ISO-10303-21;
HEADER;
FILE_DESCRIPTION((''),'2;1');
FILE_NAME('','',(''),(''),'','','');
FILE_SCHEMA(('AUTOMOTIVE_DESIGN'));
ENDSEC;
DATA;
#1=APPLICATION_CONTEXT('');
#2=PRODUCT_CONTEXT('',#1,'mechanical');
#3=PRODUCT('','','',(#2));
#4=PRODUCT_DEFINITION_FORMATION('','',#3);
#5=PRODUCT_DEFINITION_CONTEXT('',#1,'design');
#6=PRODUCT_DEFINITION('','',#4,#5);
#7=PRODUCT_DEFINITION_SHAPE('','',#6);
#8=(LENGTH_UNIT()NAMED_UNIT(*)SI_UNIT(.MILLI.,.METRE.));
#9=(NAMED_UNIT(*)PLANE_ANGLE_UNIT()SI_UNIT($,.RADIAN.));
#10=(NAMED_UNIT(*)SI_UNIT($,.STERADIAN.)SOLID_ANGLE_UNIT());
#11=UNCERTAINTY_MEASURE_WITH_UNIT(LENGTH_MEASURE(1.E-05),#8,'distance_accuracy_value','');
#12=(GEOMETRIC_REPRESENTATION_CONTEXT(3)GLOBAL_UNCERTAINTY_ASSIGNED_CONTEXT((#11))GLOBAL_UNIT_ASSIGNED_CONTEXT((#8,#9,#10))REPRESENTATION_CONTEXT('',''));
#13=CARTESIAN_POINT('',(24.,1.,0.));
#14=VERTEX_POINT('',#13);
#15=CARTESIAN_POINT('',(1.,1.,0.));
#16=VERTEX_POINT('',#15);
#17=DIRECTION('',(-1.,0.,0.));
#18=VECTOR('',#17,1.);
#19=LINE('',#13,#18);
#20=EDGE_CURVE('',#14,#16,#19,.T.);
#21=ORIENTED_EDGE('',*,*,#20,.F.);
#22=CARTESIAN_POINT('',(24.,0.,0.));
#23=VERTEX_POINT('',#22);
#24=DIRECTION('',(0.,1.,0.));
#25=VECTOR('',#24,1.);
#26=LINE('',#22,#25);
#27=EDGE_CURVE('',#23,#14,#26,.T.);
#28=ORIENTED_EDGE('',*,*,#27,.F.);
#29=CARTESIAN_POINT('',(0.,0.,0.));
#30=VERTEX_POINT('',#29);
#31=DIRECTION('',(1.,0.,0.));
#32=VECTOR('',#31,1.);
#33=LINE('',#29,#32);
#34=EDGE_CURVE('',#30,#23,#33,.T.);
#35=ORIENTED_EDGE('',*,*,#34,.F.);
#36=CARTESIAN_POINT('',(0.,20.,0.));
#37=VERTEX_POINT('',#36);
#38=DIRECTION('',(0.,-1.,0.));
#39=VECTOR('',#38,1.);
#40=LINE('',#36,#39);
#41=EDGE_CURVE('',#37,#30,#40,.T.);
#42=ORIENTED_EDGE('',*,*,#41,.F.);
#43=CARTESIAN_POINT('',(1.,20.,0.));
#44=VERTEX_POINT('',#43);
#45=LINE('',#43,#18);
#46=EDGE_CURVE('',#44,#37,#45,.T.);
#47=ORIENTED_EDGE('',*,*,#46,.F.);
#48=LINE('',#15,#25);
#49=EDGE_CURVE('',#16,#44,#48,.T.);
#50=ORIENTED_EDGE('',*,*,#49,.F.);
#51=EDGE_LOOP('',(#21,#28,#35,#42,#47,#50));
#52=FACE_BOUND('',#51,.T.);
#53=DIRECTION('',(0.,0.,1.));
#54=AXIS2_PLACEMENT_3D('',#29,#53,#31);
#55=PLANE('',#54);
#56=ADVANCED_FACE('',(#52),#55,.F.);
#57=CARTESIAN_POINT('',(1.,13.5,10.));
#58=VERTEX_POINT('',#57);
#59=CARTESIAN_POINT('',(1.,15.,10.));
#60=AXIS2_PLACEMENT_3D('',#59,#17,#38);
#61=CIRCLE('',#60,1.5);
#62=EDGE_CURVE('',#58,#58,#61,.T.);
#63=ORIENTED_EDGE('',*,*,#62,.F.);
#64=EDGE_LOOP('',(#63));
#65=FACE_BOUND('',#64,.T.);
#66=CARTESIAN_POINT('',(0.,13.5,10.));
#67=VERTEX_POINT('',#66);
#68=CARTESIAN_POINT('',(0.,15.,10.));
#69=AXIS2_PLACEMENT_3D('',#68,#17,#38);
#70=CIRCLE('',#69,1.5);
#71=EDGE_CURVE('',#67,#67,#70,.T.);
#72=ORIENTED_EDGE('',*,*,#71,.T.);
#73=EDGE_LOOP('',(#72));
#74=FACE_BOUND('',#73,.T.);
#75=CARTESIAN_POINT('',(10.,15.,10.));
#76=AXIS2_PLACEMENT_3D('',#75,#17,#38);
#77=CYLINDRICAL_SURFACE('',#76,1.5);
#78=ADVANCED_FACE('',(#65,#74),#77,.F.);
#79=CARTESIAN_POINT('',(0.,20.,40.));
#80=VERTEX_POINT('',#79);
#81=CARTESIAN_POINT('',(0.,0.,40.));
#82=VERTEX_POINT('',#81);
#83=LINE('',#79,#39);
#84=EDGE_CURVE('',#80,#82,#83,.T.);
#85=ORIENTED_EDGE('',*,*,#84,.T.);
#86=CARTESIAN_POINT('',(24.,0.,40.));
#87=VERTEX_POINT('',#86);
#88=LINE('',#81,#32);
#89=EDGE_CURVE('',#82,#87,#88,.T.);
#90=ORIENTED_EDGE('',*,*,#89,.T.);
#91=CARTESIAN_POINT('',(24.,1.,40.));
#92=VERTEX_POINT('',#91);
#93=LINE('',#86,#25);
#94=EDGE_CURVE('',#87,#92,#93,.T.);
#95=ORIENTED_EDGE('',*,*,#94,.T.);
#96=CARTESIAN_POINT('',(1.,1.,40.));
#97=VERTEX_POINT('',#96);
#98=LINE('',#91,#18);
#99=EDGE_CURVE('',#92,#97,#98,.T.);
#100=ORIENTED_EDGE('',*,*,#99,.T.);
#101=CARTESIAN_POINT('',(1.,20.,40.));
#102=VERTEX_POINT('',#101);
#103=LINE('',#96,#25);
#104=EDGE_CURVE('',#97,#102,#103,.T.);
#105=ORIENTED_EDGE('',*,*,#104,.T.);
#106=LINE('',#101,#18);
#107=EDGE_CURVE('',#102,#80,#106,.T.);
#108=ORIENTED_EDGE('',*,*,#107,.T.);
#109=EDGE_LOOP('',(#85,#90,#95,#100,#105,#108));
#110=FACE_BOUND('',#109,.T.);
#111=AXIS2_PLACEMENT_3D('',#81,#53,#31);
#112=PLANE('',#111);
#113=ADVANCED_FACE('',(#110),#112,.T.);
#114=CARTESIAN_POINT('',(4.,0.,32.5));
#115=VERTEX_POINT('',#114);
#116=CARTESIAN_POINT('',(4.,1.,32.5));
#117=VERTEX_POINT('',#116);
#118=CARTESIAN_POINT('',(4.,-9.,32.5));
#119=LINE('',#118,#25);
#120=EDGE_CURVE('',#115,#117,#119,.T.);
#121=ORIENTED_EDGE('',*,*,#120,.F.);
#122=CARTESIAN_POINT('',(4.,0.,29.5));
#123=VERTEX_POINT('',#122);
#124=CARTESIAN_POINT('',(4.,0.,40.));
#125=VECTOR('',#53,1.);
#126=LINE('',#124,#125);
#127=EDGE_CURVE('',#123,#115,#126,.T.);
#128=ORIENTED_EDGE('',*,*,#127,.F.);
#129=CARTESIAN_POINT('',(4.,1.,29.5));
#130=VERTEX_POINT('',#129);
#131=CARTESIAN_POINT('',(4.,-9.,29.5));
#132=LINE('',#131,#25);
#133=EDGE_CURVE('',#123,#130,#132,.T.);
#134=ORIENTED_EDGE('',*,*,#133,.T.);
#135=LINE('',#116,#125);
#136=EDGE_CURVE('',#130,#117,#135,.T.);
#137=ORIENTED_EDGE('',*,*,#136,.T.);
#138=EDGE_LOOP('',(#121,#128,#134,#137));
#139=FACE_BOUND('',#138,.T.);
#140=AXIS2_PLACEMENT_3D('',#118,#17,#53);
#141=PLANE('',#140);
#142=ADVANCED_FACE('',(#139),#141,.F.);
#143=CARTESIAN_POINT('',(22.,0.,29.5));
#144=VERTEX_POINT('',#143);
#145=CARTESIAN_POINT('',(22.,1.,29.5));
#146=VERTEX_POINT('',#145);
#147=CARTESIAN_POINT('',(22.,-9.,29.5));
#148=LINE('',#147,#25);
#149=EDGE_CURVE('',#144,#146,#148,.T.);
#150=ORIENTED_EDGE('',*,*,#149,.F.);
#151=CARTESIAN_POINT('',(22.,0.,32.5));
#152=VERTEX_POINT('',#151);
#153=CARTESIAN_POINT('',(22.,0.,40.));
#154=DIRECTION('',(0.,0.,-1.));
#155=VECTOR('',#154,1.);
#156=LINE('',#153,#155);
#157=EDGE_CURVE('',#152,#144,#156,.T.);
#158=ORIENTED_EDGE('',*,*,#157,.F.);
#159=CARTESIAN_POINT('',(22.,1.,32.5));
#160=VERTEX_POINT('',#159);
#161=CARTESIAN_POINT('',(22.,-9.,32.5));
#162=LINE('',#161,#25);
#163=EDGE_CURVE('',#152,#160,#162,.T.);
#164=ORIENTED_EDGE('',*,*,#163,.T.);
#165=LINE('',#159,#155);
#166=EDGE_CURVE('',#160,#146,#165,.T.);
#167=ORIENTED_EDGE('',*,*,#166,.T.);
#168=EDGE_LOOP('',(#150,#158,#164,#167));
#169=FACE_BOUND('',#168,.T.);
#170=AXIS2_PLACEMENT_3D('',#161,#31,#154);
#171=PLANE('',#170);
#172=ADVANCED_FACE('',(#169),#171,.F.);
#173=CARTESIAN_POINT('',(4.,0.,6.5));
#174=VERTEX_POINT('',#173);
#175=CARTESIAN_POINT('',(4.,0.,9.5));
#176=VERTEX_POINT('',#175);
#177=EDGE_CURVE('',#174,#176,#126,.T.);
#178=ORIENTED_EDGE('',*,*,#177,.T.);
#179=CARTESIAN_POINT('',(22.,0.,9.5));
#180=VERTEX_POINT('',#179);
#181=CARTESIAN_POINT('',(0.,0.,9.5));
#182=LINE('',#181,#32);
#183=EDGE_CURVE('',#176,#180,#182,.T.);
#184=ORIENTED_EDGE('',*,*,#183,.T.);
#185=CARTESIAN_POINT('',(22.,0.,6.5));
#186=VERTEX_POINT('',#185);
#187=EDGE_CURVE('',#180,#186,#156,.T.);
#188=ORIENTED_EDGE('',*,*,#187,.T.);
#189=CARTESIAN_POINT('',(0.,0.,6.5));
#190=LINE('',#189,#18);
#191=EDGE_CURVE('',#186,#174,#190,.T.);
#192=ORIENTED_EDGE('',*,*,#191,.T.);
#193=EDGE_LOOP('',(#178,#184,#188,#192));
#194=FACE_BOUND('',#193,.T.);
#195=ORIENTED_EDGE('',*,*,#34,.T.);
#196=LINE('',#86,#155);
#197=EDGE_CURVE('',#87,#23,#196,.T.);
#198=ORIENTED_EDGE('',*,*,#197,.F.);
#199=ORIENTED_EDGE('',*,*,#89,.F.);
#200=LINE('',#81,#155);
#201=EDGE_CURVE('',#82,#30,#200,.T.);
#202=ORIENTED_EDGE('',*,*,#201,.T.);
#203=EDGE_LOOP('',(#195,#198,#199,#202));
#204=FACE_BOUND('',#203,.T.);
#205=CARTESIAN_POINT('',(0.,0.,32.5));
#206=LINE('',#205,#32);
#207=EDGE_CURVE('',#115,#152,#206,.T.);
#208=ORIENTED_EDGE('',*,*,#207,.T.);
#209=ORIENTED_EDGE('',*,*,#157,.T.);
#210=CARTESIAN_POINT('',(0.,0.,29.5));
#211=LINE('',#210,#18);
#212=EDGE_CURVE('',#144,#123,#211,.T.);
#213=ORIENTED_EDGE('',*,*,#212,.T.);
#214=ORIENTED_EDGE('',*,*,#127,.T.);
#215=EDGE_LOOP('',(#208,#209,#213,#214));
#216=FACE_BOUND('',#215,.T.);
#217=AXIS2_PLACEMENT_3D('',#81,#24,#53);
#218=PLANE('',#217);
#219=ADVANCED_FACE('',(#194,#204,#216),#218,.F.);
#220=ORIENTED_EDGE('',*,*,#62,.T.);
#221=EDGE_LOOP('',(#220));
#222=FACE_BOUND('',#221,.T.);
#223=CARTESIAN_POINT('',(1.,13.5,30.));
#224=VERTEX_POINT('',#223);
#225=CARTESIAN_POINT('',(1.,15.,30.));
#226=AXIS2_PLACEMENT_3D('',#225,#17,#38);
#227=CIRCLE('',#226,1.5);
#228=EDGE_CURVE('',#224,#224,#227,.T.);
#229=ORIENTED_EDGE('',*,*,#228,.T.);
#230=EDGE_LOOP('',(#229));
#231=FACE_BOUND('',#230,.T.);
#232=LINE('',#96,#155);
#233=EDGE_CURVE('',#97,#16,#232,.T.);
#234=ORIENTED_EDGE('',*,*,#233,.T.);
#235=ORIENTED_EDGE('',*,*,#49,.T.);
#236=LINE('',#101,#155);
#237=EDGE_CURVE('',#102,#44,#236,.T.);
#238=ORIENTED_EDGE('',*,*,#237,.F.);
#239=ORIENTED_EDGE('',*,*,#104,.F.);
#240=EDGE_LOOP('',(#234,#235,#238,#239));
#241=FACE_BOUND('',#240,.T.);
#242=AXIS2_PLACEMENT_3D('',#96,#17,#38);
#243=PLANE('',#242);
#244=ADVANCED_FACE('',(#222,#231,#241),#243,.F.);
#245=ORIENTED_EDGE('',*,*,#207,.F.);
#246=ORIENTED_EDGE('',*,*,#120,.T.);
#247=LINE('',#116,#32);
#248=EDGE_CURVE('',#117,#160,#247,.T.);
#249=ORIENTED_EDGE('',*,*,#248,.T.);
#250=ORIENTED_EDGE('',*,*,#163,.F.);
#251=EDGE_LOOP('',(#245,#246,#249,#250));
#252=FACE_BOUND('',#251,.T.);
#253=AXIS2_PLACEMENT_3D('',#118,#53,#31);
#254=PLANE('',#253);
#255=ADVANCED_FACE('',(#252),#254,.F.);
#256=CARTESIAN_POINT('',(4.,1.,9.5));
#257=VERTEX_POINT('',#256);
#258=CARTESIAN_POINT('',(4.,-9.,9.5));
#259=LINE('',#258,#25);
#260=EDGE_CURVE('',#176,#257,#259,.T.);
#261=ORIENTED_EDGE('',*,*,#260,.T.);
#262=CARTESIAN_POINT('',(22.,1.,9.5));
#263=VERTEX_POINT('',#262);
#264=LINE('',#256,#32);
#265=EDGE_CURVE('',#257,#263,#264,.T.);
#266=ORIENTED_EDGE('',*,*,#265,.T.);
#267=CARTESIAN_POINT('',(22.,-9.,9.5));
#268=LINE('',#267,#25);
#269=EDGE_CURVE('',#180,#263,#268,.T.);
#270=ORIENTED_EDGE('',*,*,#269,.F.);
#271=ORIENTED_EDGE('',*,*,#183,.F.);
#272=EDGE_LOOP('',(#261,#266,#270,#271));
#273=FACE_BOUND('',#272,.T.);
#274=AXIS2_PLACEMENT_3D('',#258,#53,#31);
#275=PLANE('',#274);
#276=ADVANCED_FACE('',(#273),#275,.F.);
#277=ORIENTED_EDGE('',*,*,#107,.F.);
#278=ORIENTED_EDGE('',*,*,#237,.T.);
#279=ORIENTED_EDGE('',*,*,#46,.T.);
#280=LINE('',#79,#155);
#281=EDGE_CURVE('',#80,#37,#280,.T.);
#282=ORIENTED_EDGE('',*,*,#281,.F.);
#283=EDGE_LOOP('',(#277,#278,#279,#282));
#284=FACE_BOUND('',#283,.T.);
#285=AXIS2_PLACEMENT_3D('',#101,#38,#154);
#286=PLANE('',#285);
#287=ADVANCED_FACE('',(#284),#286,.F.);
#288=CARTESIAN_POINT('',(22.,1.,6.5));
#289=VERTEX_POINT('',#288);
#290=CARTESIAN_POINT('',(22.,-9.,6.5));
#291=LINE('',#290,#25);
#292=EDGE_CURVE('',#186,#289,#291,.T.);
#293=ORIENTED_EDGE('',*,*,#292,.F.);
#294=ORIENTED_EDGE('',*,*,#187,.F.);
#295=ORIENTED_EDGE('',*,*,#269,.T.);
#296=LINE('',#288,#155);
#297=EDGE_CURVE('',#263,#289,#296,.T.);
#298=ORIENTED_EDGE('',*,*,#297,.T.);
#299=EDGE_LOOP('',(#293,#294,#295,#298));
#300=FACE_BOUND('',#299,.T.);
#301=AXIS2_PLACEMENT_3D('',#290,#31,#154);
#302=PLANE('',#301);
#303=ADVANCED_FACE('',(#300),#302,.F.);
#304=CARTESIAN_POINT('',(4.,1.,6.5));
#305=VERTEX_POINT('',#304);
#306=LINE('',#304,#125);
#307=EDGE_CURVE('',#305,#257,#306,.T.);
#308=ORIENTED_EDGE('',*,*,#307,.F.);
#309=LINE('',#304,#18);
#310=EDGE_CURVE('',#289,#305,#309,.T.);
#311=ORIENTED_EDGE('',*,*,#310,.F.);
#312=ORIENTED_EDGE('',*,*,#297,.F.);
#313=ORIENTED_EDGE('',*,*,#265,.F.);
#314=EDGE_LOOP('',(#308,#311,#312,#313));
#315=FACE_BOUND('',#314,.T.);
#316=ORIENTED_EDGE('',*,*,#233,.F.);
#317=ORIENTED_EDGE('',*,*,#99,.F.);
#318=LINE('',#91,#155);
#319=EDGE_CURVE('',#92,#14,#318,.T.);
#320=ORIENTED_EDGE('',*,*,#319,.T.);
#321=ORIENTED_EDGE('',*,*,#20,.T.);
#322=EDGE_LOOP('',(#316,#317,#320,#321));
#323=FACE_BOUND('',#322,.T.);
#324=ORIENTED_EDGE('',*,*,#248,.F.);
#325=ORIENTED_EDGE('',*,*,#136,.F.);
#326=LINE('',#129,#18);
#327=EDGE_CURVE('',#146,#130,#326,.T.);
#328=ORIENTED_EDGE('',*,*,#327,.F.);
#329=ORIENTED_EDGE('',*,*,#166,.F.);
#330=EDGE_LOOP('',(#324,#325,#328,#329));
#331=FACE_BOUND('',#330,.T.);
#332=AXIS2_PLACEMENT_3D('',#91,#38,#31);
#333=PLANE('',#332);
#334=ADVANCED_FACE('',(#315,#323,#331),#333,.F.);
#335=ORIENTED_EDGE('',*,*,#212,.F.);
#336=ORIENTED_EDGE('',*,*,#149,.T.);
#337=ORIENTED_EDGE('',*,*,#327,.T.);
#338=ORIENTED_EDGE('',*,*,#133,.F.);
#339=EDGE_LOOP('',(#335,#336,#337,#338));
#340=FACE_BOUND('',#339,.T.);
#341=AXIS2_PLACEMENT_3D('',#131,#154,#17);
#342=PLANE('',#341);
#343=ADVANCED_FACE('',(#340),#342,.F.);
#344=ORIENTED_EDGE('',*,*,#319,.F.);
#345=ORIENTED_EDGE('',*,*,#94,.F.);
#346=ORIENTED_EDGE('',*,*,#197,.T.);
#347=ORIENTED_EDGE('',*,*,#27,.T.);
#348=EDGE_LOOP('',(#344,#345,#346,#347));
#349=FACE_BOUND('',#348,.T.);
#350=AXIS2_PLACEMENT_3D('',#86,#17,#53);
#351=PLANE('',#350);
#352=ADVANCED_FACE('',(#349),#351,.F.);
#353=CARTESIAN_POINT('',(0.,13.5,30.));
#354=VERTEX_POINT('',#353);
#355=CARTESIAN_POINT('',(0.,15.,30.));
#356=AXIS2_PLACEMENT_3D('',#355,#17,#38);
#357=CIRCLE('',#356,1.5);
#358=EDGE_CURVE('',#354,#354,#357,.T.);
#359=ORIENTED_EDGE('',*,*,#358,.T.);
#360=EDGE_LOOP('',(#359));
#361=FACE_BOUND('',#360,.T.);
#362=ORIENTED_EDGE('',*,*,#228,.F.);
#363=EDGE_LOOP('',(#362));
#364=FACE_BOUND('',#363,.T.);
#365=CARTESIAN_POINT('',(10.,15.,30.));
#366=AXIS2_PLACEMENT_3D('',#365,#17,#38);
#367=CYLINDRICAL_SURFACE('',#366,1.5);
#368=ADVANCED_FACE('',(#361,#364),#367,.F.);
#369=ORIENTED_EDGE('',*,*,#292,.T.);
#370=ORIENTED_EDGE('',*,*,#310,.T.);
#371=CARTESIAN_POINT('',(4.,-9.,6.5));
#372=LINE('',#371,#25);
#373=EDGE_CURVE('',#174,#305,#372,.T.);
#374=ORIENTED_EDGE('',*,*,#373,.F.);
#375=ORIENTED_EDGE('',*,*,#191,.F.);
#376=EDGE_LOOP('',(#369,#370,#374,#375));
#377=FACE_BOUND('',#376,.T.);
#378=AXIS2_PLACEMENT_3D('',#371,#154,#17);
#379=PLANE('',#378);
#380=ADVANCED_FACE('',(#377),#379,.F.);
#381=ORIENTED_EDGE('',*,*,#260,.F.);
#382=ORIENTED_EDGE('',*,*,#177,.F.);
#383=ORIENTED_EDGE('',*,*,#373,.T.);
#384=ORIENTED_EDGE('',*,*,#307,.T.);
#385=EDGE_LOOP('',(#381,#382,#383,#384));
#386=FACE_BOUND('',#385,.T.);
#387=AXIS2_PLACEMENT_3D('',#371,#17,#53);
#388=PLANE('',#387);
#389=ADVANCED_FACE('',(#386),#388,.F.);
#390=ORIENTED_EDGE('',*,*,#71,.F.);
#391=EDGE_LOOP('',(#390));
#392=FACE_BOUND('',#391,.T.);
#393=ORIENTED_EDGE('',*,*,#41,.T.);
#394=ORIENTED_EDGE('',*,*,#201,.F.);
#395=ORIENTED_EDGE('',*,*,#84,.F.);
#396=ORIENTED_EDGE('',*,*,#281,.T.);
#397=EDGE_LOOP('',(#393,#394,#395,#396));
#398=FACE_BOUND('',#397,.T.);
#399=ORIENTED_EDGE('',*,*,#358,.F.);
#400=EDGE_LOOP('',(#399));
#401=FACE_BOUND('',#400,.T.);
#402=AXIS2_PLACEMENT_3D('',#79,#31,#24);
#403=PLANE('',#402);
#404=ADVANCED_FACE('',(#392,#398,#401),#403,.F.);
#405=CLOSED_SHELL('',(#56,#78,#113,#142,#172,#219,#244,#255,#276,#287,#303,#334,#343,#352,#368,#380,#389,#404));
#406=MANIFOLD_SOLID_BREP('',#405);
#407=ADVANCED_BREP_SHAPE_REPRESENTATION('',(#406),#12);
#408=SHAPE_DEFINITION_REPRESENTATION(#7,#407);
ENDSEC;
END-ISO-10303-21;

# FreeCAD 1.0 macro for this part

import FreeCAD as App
import Part
import Sketcher
from FreeCAD import Vector

doc = App.newDocument("Part")
body = doc.addObject("PartDesign::Body", "Body")

# Sketch on XY plane
sketch1 = body.newObject("Sketcher::SketchObject", "Sketch")
sketch1.AttachmentSupport = (doc.getObject("XY_Plane"), [""])
sketch1.MapMode = "FlatFace"
sketch1.addGeometry(Part.LineSegment(Vector(0, 0, 0), Vector(24, 0, 0)), False)
sketch1.addGeometry(Part.LineSegment(Vector(24, 0, 0), Vector(24, 1, 0)), False)
sketch1.addGeometry(Part.LineSegment(Vector(24, 1, 0), Vector(1, 1, 0)), False)
sketch1.addGeometry(Part.LineSegment(Vector(1, 1, 0), Vector(1, 20, 0)), False)
sketch1.addGeometry(Part.LineSegment(Vector(1, 20, 0), Vector(0, 20, 0)), False)
sketch1.addGeometry(Part.LineSegment(Vector(0, 20, 0), Vector(0, 0, 0)), False)
sketch1.addConstraint(Sketcher.Constraint("Coincident", 0, 2, 1, 1))
sketch1.addConstraint(Sketcher.Constraint("Coincident", 1, 2, 2, 1))
sketch1.addConstraint(Sketcher.Constraint("Coincident", 2, 2, 3, 1))
sketch1.addConstraint(Sketcher.Constraint("Coincident", 3, 2, 4, 1))
sketch1.addConstraint(Sketcher.Constraint("Coincident", 4, 2, 5, 1))
sketch1.addConstraint(Sketcher.Constraint("Coincident", 5, 2, 0, 1))
sketch1.addConstraint(Sketcher.Constraint("Horizontal", 0))
sketch1.addConstraint(Sketcher.Constraint("Vertical", 1))
sketch1.addConstraint(Sketcher.Constraint("Horizontal", 2))
sketch1.addConstraint(Sketcher.Constraint("Vertical", 3))
sketch1.addConstraint(Sketcher.Constraint("Horizontal", 4))
sketch1.addConstraint(Sketcher.Constraint("Vertical", 5))
sketch1.addConstraint(Sketcher.Constraint("Coincident", 5, 2, -1, 1))
sketch1.addConstraint(Sketcher.Constraint("Equal", 4, 1))
sketch1.addConstraint(Sketcher.Constraint("DistanceX", 0, 1, 0, 2, 24.0))
sketch1.addConstraint(Sketcher.Constraint("DistanceX", 2, 2, 2, 1, 23.0))
sketch1.addConstraint(Sketcher.Constraint("DistanceY", 3, 1, 3, 2, 19.0))
pad1 = body.newObject("PartDesign::Pad", "Pad")
pad1.Profile = sketch1
pad1.Length = 40

# Sketch on XZ plane
sketch2 = body.newObject("Sketcher::SketchObject", "Sketch001")
sketch2.AttachmentSupport = (doc.getObject("XZ_Plane"), [""])
sketch2.MapMode = "FlatFace"
sketch2.AttachmentOffset = App.Placement(Vector(0, 0, -1), App.Rotation())
sketch2.addGeometry(Part.LineSegment(Vector(4, 6.5, 0), Vector(4, 9.5, 0)), False)
sketch2.addGeometry(Part.LineSegment(Vector(4, 9.5, 0), Vector(22, 9.5, 0)), False)
sketch2.addGeometry(Part.LineSegment(Vector(22, 9.5, 0), Vector(22, 6.5, 0)), False)
sketch2.addGeometry(Part.LineSegment(Vector(22, 6.5, 0), Vector(4, 6.5, 0)), False)
sketch2.addGeometry(Part.LineSegment(Vector(4, 29.5, 0), Vector(4, 32.5, 0)), False)
sketch2.addGeometry(Part.LineSegment(Vector(4, 32.5, 0), Vector(22, 32.5, 0)), False)
sketch2.addGeometry(Part.LineSegment(Vector(22, 32.5, 0), Vector(22, 29.5, 0)), False)
sketch2.addGeometry(Part.LineSegment(Vector(22, 29.5, 0), Vector(4, 29.5, 0)), False)
sketch2.addConstraint(Sketcher.Constraint("Coincident", 0, 2, 1, 1))
sketch2.addConstraint(Sketcher.Constraint("Coincident", 1, 2, 2, 1))
sketch2.addConstraint(Sketcher.Constraint("Coincident", 2, 2, 3, 1))
sketch2.addConstraint(Sketcher.Constraint("Coincident", 3, 2, 0, 1))
sketch2.addConstraint(Sketcher.Constraint("Coincident", 4, 2, 5, 1))
sketch2.addConstraint(Sketcher.Constraint("Coincident", 5, 2, 6, 1))
sketch2.addConstraint(Sketcher.Constraint("Coincident", 6, 2, 7, 1))
sketch2.addConstraint(Sketcher.Constraint("Coincident", 7, 2, 4, 1))
sketch2.addConstraint(Sketcher.Constraint("Vertical", 0))
sketch2.addConstraint(Sketcher.Constraint("Horizontal", 1))
sketch2.addConstraint(Sketcher.Constraint("Vertical", 2))
sketch2.addConstraint(Sketcher.Constraint("Horizontal", 3))
sketch2.addConstraint(Sketcher.Constraint("Vertical", 4))
sketch2.addConstraint(Sketcher.Constraint("Horizontal", 5))
sketch2.addConstraint(Sketcher.Constraint("Vertical", 6))
sketch2.addConstraint(Sketcher.Constraint("Horizontal", 7))
sketch2.addConstraint(Sketcher.Constraint("Vertical", 3, 2, 4, 2))
sketch2.addConstraint(Sketcher.Constraint("Vertical", 2, 2, 5, 2))
sketch2.addConstraint(Sketcher.Constraint("Equal", 2, 4))
sketch2.addConstraint(Sketcher.Constraint("DistanceX", 1, 1, 1, 2, 18.0))
sketch2.addConstraint(Sketcher.Constraint("DistanceY", 0, 1, 0, 2, 3.0))
sketch2.addConstraint(Sketcher.Constraint("DistanceX", -1, 1, 0, 2, 4.0))
sketch2.addConstraint(Sketcher.Constraint("DistanceY", 0, 2, 4, 2, 23.0))
sketch2.addConstraint(Sketcher.Constraint("DistanceY", -1, 1, 0, 2, 9.5))
pocket1 = body.newObject("PartDesign::Pocket", "Pocket")
pocket1.Profile = sketch2
pocket1.Length = 10
pocket1.Reversed = True

# Sketch on YZ plane
sketch3 = body.newObject("Sketcher::SketchObject", "Sketch002")
sketch3.AttachmentSupport = (doc.getObject("YZ_Plane"), [""])
sketch3.MapMode = "FlatFace"
sketch3.addGeometry(Part.Circle(Vector(15, 30, 0), Vector(0, 0, 1), 1.5), False)
sketch3.addGeometry(Part.Circle(Vector(15, 10, 0), Vector(0, 0, 1), 1.5), False)
sketch3.addConstraint(Sketcher.Constraint("Equal", 0, 1))
sketch3.addConstraint(Sketcher.Constraint("Vertical", 0, 3, 1, 3))
sketch3.addConstraint(Sketcher.Constraint("Diameter", 0, 3.0))
sketch3.addConstraint(Sketcher.Constraint("DistanceX", -1, 1, 0, 3, 15.0))
sketch3.addConstraint(Sketcher.Constraint("DistanceY", -1, 1, 0, 3, 30.0))
sketch3.addConstraint(Sketcher.Constraint("DistanceY", -1, 1, 1, 3, 10.0))
pocket2 = body.newObject("PartDesign::Pocket", "Pocket001")
pocket2.Profile = sketch3
pocket2.Length = 10
pocket2.Reversed = True

doc.recompute()
